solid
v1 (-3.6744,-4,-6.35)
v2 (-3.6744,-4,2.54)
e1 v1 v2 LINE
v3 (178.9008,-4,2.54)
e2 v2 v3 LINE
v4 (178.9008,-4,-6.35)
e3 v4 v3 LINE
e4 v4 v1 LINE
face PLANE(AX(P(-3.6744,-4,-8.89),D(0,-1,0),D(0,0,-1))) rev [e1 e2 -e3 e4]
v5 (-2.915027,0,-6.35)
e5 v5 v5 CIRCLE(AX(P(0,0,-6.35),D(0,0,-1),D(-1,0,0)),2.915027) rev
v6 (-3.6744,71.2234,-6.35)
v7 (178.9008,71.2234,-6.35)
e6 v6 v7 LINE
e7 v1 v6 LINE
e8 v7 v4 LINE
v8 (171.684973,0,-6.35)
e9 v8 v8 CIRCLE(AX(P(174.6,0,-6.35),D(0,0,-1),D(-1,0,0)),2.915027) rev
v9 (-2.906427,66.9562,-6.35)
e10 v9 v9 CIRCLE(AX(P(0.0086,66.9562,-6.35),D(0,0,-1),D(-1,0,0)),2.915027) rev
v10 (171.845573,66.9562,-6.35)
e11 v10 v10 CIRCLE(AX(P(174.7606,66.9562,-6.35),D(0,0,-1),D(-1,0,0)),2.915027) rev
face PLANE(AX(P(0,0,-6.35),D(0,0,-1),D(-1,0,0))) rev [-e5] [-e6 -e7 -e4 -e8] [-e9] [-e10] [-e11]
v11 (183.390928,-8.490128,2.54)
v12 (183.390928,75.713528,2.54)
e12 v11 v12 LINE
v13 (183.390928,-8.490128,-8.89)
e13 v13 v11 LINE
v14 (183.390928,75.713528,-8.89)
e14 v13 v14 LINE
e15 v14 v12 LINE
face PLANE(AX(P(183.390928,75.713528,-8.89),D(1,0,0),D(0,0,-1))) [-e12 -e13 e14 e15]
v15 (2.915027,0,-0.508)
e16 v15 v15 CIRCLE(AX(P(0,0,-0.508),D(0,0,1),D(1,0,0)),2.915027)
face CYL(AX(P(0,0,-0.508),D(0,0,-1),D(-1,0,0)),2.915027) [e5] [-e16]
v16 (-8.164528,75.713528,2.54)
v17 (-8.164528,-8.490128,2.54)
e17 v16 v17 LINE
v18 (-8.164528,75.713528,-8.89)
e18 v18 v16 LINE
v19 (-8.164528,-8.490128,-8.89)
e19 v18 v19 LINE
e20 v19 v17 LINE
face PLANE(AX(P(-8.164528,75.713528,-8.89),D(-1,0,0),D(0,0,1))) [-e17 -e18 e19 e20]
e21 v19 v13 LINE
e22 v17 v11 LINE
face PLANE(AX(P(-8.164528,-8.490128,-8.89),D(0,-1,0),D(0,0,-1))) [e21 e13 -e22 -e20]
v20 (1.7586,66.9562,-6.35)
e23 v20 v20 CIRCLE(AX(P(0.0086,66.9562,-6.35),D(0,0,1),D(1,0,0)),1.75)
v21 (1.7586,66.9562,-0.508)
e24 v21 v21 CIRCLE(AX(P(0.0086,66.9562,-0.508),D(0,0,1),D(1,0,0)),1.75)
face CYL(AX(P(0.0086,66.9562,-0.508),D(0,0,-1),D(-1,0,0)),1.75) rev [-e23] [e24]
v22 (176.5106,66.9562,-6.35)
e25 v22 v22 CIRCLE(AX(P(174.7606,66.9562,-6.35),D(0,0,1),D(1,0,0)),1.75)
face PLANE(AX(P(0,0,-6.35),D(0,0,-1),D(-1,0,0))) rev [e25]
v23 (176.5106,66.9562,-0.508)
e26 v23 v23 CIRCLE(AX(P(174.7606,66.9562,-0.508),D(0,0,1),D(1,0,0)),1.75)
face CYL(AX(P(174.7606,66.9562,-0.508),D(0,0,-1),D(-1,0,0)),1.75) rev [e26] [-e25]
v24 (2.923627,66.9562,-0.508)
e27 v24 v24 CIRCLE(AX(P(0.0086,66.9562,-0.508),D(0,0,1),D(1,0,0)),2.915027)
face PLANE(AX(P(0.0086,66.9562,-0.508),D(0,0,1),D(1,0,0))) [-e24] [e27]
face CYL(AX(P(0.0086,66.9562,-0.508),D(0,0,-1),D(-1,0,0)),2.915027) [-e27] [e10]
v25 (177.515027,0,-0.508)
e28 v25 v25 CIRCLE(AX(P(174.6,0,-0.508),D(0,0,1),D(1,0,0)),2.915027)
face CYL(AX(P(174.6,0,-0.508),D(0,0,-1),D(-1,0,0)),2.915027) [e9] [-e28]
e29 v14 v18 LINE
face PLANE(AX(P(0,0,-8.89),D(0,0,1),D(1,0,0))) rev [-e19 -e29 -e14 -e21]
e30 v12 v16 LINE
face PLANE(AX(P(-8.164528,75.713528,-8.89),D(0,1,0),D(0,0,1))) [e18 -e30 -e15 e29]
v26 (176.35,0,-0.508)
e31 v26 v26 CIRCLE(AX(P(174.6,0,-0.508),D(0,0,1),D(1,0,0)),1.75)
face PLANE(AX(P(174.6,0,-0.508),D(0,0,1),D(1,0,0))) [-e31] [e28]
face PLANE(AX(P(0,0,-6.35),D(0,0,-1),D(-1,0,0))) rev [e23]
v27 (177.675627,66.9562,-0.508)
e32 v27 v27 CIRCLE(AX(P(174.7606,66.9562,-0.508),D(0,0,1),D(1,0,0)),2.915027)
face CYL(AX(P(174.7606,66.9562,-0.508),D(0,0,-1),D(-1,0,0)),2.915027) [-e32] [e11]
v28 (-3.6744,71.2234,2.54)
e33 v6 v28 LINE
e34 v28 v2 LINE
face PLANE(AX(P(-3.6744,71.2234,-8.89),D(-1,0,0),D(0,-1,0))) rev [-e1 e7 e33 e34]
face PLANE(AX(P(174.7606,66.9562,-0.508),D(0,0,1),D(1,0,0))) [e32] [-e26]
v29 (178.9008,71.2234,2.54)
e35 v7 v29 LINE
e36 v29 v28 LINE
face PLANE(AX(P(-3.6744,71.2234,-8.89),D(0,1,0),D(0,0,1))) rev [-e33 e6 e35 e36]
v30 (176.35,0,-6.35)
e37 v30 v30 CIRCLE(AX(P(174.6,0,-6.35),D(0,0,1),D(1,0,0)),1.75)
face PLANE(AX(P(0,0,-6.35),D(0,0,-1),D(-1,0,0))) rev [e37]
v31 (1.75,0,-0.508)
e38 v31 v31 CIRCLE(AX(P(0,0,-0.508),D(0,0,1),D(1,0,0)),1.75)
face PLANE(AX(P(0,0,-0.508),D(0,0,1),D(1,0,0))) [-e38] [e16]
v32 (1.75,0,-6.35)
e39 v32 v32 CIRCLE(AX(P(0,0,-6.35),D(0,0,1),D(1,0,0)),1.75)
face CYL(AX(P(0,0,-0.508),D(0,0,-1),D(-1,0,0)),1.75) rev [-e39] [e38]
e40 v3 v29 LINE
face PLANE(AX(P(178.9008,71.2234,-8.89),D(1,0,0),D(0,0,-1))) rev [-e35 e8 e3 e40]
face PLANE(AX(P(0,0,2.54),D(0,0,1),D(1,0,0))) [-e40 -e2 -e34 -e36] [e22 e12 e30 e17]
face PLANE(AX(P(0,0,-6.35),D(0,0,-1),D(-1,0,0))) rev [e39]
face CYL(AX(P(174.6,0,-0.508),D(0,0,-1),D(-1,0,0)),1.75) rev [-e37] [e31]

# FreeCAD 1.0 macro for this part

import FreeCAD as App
import Part
import Sketcher
Q = App.Units.Quantity


def add_polygon(sketch, points):
    """Adds a closed chain of lines whose ends are joined by coincident constraints."""
    first, n = sketch.GeometryCount, len(points)
    for a, b in zip(points, points[1:] + points[:1]):
        sketch.addGeometry(Part.LineSegment(App.Vector(*a, 0), App.Vector(*b, 0)), False)
    for i in range(n):
        sketch.addConstraint(Sketcher.Constraint("Coincident", first + i, 2, first + (i + 1) % n, 1))

doc = App.newDocument("Part")
params = doc.addObject("Spreadsheet::Sheet", "Params")
for row, (alias, value) in enumerate([
    ("sketch1_width", "7.188 in"),
    ("pad1_length", "0.1 in"),
    ("pad1_length2", "0.35 in"),
    ("sketch2_width", "7.188 in"),
    ("pad2_length", "0.1 in"),
    ("pad3_length", "0.23 in"),
], start=1):
    params.set(f"A{row}", alias)
    params.set(f"B{row}", "=" + value)
    params.setAlias(f"B{row}", alias)

body = doc.addObject("PartDesign::Body", "Body")

# Sketch on XY plane
sketch1 = body.newObject("Sketcher::SketchObject", "Sketch")
sketch1.AttachmentSupport = (doc.getObject("XY_Plane"), [""])
sketch1.MapMode = "FlatFace"
add_polygon(sketch1, [(-8, 76), (-8, -8), (183, -8), (183, 76)])  # lines 0-3
add_polygon(sketch1, [(179, -4), (-4, -4), (-4, 71), (179, 71)])  # lines 4-7
sketch1.addConstraint([
    Sketcher.Constraint("Vertical", 0),
    Sketcher.Constraint("Horizontal", 1),
    Sketcher.Constraint("Vertical", 2),
    Sketcher.Constraint("Horizontal", 3),
    Sketcher.Constraint("Horizontal", 4),
    Sketcher.Constraint("Vertical", 5),
    Sketcher.Constraint("Horizontal", 6),
    Sketcher.Constraint("Vertical", 7),
    Sketcher.Constraint("DistanceX", 4, 2, 4, 1, Q("7.188 in")),
    Sketcher.Constraint("DistanceY", 5, 1, 5, 2, 75.2234),
    Sketcher.Constraint("DistanceX", 4, 2, -1, 1, 3.6744),
    Sketcher.Constraint("DistanceY", 4, 2, -1, 1, 4.0),
    Sketcher.Constraint("DistanceX", 1, 1, 1, 2, 191.555456),
    Sketcher.Constraint("DistanceY", 0, 2, 0, 1, 84.203656),
    Sketcher.Constraint("DistanceX", 0, 2, -1, 1, 8.164528),
    Sketcher.Constraint("DistanceY", 0, 2, -1, 1, 8.490128),
])
sketch1.setExpression("Constraints[16]", "Params.sketch1_width")
pad1 = body.newObject("PartDesign::Pad", "Pad")
pad1.Profile = sketch1
pad1.Type = "TwoLengths"
pad1.setExpression("Length", "Params.pad1_length")
pad1.setExpression("Length2", "Params.pad1_length2")

# Sketch on XY plane
sketch2 = body.newObject("Sketcher::SketchObject", "Sketch001")
sketch2.AttachmentSupport = (doc.getObject("XY_Plane"), [""])
sketch2.MapMode = "FlatFace"
sketch2.AttachmentOffset = App.Placement(App.Vector(0, 0, -0.35 * 25.4), App.Rotation())
add_polygon(sketch2, [(179, 71), (179, -4), (-4, -4), (-4, 71)])  # lines 0-3
sketch2.addConstraint([
    Sketcher.Constraint("Vertical", 0),
    Sketcher.Constraint("Horizontal", 1),
    Sketcher.Constraint("Vertical", 2),
    Sketcher.Constraint("Horizontal", 3),
    Sketcher.Constraint("DistanceX", 1, 2, 1, 1, Q("7.188 in")),
    Sketcher.Constraint("DistanceY", 0, 2, 0, 1, 75.2234),
    Sketcher.Constraint("DistanceX", -1, 1, 0, 2, 178.9008),
    Sketcher.Constraint("DistanceY", 0, 2, -1, 1, 4.0),
])
sketch2.setExpression("Constraints[8]", "Params.sketch2_width")
pad2 = body.newObject("PartDesign::Pad", "Pad001")
pad2.Profile = sketch2
pad2.setExpression("Length", "Params.pad2_length")

# Sketch on XY plane
sketch3 = body.newObject("Sketcher::SketchObject", "Sketch002")
sketch3.AttachmentSupport = (doc.getObject("XY_Plane"), [""])
sketch3.MapMode = "FlatFace"
sketch3.AttachmentOffset = App.Placement(App.Vector(0, 0, -0.25 * 25.4), App.Rotation())
sketch3.addGeometry([
    Part.Circle(App.Vector(0, 67, 0), App.Vector(0, 0, 1), 2.9),  # 0
    Part.Circle(App.Vector(0, 67, 0), App.Vector(0, 0, 1), 1.8),  # 1
    Part.Circle(App.Vector(174.8, 67, 0), App.Vector(0, 0, 1), 2.9),  # 2
    Part.Circle(App.Vector(174.8, 67, 0), App.Vector(0, 0, 1), 1.8),  # 3
    Part.Circle(App.Vector(174.6, 0, 0), App.Vector(0, 0, 1), 2.9),  # 4
    Part.Circle(App.Vector(174.6, 0, 0), App.Vector(0, 0, 1), 1.8),  # 5
    Part.Circle(App.Vector(0, 0, 0), App.Vector(0, 0, 1), 2.9),  # 6
    Part.Circle(App.Vector(0, 0, 0), App.Vector(0, 0, 1), 1.8),  # 7
], False)
sketch3.addConstraint([
    Sketcher.Constraint("Coincident", 6, 3, -1, 1),
    Sketcher.Constraint("Coincident", 7, 3, -1, 1),
    Sketcher.Constraint("Coincident", 1, 3, 0, 3),
    Sketcher.Constraint("Coincident", 3, 3, 2, 3),
    Sketcher.Constraint("Coincident", 5, 3, 4, 3),
    Sketcher.Constraint("Equal", 0, 2),
    Sketcher.Constraint("Equal", 1, 3),
    Sketcher.Constraint("Equal", 2, 4),
    Sketcher.Constraint("Equal", 3, 5),
    Sketcher.Constraint("Equal", 4, 6),
    Sketcher.Constraint("Equal", 5, 7),
    Sketcher.Constraint("PointOnObject", 4, 3, -1),
    Sketcher.Constraint("Horizontal", 1, 3, 2, 3),
    Sketcher.Constraint("Diameter", 1, 3.5),
    Sketcher.Constraint("DistanceX", 0, 3, 2, 3, Q("6.88 in")),
    Sketcher.Constraint("Diameter", 0, 5.830054),
    Sketcher.Constraint("DistanceX", -1, 1, 0, 3, 0.0086),
    Sketcher.Constraint("DistanceY", -1, 1, 0, 3, 66.9562),
    Sketcher.Constraint("DistanceX", -1, 1, 4, 3, 174.6),
])
pad3 = body.newObject("PartDesign::Pad", "Pad002")
pad3.Profile = sketch3
pad3.setExpression("Length", "Params.pad3_length")

doc.recompute()
